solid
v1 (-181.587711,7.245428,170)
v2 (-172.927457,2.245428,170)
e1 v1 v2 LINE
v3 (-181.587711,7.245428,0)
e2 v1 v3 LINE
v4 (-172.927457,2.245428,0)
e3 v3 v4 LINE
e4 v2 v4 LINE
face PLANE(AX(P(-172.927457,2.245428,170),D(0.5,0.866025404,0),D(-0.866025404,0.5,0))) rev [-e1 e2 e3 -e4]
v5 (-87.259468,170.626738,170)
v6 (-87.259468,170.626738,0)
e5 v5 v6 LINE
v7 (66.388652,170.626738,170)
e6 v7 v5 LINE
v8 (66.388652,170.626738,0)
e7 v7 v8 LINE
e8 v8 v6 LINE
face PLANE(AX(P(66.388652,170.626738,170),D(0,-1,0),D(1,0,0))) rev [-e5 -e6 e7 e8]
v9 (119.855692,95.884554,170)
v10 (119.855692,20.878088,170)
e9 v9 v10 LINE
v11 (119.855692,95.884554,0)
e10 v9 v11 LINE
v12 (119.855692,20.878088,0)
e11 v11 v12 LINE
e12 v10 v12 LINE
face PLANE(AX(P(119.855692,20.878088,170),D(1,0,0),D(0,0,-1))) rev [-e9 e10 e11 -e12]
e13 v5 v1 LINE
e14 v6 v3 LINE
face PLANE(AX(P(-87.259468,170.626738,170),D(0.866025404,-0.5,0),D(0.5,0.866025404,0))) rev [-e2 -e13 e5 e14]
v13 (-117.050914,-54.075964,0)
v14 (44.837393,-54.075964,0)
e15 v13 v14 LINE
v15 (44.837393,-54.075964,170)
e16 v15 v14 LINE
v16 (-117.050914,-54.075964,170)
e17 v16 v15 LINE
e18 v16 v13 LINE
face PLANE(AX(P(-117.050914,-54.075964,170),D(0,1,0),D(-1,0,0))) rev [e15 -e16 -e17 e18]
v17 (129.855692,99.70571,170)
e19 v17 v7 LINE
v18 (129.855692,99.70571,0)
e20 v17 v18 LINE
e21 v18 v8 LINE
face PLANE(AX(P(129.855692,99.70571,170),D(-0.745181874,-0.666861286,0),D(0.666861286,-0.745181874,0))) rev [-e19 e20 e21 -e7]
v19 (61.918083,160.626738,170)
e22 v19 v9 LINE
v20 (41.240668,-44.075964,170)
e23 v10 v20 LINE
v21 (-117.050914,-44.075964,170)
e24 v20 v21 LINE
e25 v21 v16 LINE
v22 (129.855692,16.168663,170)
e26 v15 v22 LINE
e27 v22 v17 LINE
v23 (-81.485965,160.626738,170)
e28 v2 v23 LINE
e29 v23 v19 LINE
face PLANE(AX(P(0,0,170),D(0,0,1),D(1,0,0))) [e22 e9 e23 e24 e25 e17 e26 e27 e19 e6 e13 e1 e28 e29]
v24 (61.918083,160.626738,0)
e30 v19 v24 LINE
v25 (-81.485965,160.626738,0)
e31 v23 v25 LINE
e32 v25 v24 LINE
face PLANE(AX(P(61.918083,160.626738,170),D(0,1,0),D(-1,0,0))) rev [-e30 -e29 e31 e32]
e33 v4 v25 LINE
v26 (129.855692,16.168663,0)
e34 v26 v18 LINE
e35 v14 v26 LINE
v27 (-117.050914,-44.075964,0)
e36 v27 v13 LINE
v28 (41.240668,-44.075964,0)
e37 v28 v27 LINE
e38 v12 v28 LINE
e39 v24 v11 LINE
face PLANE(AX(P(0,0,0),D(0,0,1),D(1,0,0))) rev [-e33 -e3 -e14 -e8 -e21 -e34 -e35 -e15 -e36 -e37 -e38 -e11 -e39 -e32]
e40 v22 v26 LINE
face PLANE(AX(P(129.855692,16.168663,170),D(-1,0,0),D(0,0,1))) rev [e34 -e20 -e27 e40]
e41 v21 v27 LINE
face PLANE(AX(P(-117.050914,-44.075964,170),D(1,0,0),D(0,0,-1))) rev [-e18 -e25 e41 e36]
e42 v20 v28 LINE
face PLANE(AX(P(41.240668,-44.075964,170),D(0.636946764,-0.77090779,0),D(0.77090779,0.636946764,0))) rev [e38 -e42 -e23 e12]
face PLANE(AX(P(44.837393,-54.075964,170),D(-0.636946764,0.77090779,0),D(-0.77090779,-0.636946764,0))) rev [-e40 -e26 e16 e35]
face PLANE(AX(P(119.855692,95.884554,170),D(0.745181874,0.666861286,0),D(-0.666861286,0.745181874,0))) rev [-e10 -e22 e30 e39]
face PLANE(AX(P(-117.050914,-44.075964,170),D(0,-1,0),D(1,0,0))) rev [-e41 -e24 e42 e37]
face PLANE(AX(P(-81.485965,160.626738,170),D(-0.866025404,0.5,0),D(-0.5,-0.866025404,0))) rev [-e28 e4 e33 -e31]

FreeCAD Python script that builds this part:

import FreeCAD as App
import Part
import Sketcher
Q = App.Units.Quantity


def add_polygon(sketch, points):
    """Adds a closed chain of lines whose ends are joined by coincident constraints."""
    first, n = sketch.GeometryCount, len(points)
    for a, b in zip(points, points[1:] + points[:1]):
        sketch.addGeometry(Part.LineSegment(App.Vector(*a, 0), App.Vector(*b, 0)), False)
    for i in range(n):
        sketch.addConstraint(Sketcher.Constraint("Coincident", first + i, 2, first + (i + 1) % n, 1))

doc = App.newDocument("Part")
body = doc.addObject("PartDesign::Body", "Body")

sketch1 = body.newObject("Sketcher::SketchObject", "Sketch")
sketch1.AttachmentSupport = (doc.getObject("XY_Plane"), [""])
sketch1.MapMode = "FlatFace"
add_polygon(sketch1, [(41, -44), (-117, -44), (-117, -54), (45, -54), (130, 16), (130, 100), (66, 171), (-87, 171), (-182, 7), (-173, 2), (-81, 161), (62, 161), (120, 96), (120, 21)])
sketch1.addConstraint(Sketcher.Constraint("Horizontal", 0))
sketch1.addConstraint(Sketcher.Constraint("Vertical", 1))
sketch1.addConstraint(Sketcher.Constraint("Horizontal", 2))
sketch1.addConstraint(Sketcher.Constraint("Vertical", 4))
sketch1.addConstraint(Sketcher.Constraint("Horizontal", 6))
sketch1.addConstraint(Sketcher.Constraint("Horizontal", 10))
sketch1.addConstraint(Sketcher.Constraint("Vertical", 12))
sketch1.addConstraint(Sketcher.Constraint("Perpendicular", 7, 8))
sketch1.addConstraint(Sketcher.Constraint("Perpendicular", 8, 9))
sketch1.addConstraint(Sketcher.Constraint("Parallel", 5, 11))
sketch1.addConstraint(Sketcher.Constraint("Parallel", 3, 13))
sketch1.addConstraint(Sketcher.Constraint("DistanceY", 1, 2, 1, 1, 10.0))
sketch1.addConstraint(Sketcher.Constraint("Angle", 7, Q("-120 deg")))
sketch1.addConstraint(Sketcher.Constraint("Distance", 8, 10.0))
sketch1.addConstraint(Sketcher.Constraint("DistanceY", 9, 2, 6, 2, 10.0))
sketch1.addConstraint(Sketcher.Constraint("DistanceX", 11, 2, 4, 2, 10.0))
sketch1.addConstraint(Sketcher.Constraint("DistanceX", 6, 2, 6, 1, 153.64812))
sketch1.addConstraint(Sketcher.Constraint("DistanceX", 2, 2, 3, 2, 85.018299))
sketch1.addConstraint(Sketcher.Constraint("Distance", 11, 86.881051))
sketch1.addConstraint(Sketcher.Constraint("DistanceX", 0, 2, 0, 1, 158.291583))
sketch1.addConstraint(Sketcher.Constraint("DistanceX", 2, 1, 2, 2, 161.888307))
sketch1.addConstraint(Sketcher.Constraint("DistanceX", 10, 1, 10, 2, 143.404048))
sketch1.addConstraint(Sketcher.Constraint("DistanceY", 4, 1, 4, 2, 83.537047))
sketch1.addConstraint(Sketcher.Constraint("DistanceY", 12, 2, 12, 1, 75.006465))
sketch1.addConstraint(Sketcher.Constraint("DistanceY", -1, 1, 4, 2, 99.70571))
sketch1.addConstraint(Sketcher.Constraint("DistanceX", -1, 1, 5, 2, 66.388652))
sketch1.addConstraint(Sketcher.Constraint("DistanceY", -1, 1, 5, 2, 170.626738))
sketch1.addConstraint(Sketcher.Constraint("DistanceX", 7, 2, -1, 1, 181.587711))
pad1 = body.newObject("PartDesign::Pad", "Pad")
pad1.Profile = sketch1
pad1.Length = 170

doc.recompute()
